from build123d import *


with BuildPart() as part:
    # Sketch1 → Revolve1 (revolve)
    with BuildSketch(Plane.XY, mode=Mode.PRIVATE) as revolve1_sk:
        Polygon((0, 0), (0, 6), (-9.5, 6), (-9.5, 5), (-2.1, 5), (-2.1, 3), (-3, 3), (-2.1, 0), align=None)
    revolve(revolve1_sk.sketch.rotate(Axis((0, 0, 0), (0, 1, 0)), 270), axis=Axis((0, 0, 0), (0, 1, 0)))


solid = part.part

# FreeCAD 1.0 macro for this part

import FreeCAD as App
import Part
import Sketcher

V = App.Vector
Q = App.Units.Quantity


def add_polygon(sketch, points):
    """Adds a closed chain of lines whose ends are joined by coincident constraints."""
    first, n = sketch.GeometryCount, len(points)
    for a, b in zip(points, points[1:] + points[:1]):
        sketch.addGeometry(Part.LineSegment(App.Vector(*a, 0), App.Vector(*b, 0)), False)
    for i in range(n):
        sketch.addConstraint(Sketcher.Constraint("Coincident", first + i, 2, first + (i + 1) % n, 1))

doc = App.newDocument("Part")
body = doc.addObject("PartDesign::Body", "Body")

# Sketch on XY plane
sketch1 = body.newObject("Sketcher::SketchObject", "Sketch")
sketch1.AttachmentSupport = (doc.getObject("XY_Plane"), [""])
sketch1.MapMode = "FlatFace"
add_polygon(sketch1, [(0, 0), (0, 6), (-9.5, 6), (-9.5, 5), (-2.1, 5), (-2.1, 3), (-3, 3), (-2.1, 0)])  # lines 0-7
sketch1.addConstraint(Sketcher.Constraint("Vertical", 0))
sketch1.addConstraint(Sketcher.Constraint("Horizontal", 1))
sketch1.addConstraint(Sketcher.Constraint("Vertical", 2))
sketch1.addConstraint(Sketcher.Constraint("Horizontal", 3))
sketch1.addConstraint(Sketcher.Constraint("Vertical", 4))
sketch1.addConstraint(Sketcher.Constraint("Horizontal", 5))
sketch1.addConstraint(Sketcher.Constraint("Horizontal", 7))
sketch1.addConstraint(Sketcher.Constraint("Coincident", 7, 2, -1, 1))
sketch1.addConstraint(Sketcher.Constraint("Vertical", 4, 2, 6, 2))
sketch1.addConstraint(Sketcher.Constraint("DistanceY", 0, 1, 0, 2, Q("6 mm")))
sketch1.addConstraint(Sketcher.Constraint("DistanceY", 2, 2, 2, 1, Q("1 mm")))
sketch1.addConstraint(Sketcher.Constraint("DistanceY", 4, 2, 4, 1, Q("2 mm")))
sketch1.addConstraint(Sketcher.Constraint("DistanceX", 1, 2, 1, 1, Q("9.5 mm")))
sketch1.addConstraint(Sketcher.Constraint("DistanceX", 3, 1, 3, 2, Q("7.4 mm")))
sketch1.addConstraint(Sketcher.Constraint("DistanceX", 5, 2, 5, 1, Q("0.9 mm")))
revolution = body.newObject("PartDesign::Revolution", "Revolution")
revolution.Profile = sketch1
revolution.ReferenceAxis = (sketch1, ["V_Axis"])
revolution.Angle = 360

doc.recompute()
